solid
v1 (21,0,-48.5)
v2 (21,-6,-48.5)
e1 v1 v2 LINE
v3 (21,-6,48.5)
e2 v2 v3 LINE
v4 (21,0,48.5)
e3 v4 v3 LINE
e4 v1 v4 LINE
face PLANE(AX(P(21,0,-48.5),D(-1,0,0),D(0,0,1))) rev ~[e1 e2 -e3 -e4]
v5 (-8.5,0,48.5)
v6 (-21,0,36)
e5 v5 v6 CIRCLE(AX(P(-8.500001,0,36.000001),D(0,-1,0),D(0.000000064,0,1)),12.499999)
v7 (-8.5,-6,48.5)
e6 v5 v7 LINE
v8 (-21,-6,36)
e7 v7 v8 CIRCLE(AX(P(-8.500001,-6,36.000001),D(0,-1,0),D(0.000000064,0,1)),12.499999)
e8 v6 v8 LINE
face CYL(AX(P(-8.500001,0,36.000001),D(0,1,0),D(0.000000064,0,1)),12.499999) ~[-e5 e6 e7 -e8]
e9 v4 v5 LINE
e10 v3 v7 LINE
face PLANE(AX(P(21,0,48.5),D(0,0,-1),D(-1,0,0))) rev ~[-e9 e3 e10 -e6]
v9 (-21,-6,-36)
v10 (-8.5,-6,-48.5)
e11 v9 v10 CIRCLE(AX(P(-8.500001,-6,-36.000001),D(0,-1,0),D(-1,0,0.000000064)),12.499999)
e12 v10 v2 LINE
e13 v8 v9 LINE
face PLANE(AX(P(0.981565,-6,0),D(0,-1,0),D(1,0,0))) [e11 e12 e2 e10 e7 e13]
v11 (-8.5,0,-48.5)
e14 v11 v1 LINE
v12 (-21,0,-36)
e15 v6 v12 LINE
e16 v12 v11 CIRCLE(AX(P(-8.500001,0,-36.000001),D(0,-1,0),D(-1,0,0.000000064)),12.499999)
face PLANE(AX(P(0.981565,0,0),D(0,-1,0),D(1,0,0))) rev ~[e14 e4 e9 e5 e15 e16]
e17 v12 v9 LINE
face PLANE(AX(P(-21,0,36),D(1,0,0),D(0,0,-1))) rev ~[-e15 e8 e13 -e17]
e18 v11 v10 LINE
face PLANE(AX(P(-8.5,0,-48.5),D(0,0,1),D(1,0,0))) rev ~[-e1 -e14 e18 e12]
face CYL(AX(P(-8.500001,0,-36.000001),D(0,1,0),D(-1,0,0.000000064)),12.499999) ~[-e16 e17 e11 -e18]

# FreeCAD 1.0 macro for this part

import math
import FreeCAD as App
import Part
import Sketcher
from FreeCAD import Vector

doc = App.newDocument("Part")
body = doc.addObject("PartDesign::Body", "Body")

# Sketch on XZ plane
sketch1 = body.newObject("Sketcher::SketchObject", "Sketch")
sketch1.AttachmentSupport = (doc.getObject("XZ_Plane"), [""])
sketch1.MapMode = "FlatFace"
sketch1.addGeometry(Part.LineSegment(Vector(21, -48, 0), Vector(21, 48, 0)), False)
sketch1.addGeometry(Part.LineSegment(Vector(21, 48, 0), Vector(-8, 48, 0)), False)
sketch1.addGeometry(Part.ArcOfCircle(Part.Circle(Vector(-9, 36, 0), Vector(0, 0, 1), 12), math.radians(90), math.radians(180)), False)
sketch1.addGeometry(Part.LineSegment(Vector(-21, 36, 0), Vector(-21, -36, 0)), False)
sketch1.addGeometry(Part.ArcOfCircle(Part.Circle(Vector(-9, -36, 0), Vector(0, 0, 1), 12), math.radians(180), math.radians(270)), False)
sketch1.addGeometry(Part.LineSegment(Vector(-8, -48, 0), Vector(21, -48, 0)), False)
sketch1.addConstraint(Sketcher.Constraint("Coincident", 0, 2, 1, 1))
sketch1.addConstraint(Sketcher.Constraint("Tangent", 1, 2, 2, 1))
sketch1.addConstraint(Sketcher.Constraint("Tangent", 2, 2, 3, 1))
sketch1.addConstraint(Sketcher.Constraint("Tangent", 3, 2, 4, 1))
sketch1.addConstraint(Sketcher.Constraint("Tangent", 4, 2, 5, 1))
sketch1.addConstraint(Sketcher.Constraint("Coincident", 5, 2, 0, 1))
sketch1.addConstraint(Sketcher.Constraint("Vertical", 0))
sketch1.addConstraint(Sketcher.Constraint("Horizontal", 1))
sketch1.addConstraint(Sketcher.Constraint("Vertical", 3))
sketch1.addConstraint(Sketcher.Constraint("Horizontal", 5))
sketch1.addConstraint(Sketcher.Constraint("Equal", 2, 4))
sketch1.addConstraint(Sketcher.Constraint("Radius", 2, 12.499999))
sketch1.addConstraint(Sketcher.Constraint("DistanceY", 0, 1, 0, 2, 97.0))
sketch1.addConstraint(Sketcher.Constraint("DistanceX", 1, 2, 1, 1, 29.5))
sketch1.addConstraint(Sketcher.Constraint("DistanceY", -1, 1, 2, 3, 36.000001))
sketch1.addConstraint(Sketcher.Constraint("DistanceX", -1, 1, 0, 2, 21.0))
pad1 = body.newObject("PartDesign::Pad", "Pad")
pad1.Profile = sketch1
pad1.Length = 6

doc.recompute()
